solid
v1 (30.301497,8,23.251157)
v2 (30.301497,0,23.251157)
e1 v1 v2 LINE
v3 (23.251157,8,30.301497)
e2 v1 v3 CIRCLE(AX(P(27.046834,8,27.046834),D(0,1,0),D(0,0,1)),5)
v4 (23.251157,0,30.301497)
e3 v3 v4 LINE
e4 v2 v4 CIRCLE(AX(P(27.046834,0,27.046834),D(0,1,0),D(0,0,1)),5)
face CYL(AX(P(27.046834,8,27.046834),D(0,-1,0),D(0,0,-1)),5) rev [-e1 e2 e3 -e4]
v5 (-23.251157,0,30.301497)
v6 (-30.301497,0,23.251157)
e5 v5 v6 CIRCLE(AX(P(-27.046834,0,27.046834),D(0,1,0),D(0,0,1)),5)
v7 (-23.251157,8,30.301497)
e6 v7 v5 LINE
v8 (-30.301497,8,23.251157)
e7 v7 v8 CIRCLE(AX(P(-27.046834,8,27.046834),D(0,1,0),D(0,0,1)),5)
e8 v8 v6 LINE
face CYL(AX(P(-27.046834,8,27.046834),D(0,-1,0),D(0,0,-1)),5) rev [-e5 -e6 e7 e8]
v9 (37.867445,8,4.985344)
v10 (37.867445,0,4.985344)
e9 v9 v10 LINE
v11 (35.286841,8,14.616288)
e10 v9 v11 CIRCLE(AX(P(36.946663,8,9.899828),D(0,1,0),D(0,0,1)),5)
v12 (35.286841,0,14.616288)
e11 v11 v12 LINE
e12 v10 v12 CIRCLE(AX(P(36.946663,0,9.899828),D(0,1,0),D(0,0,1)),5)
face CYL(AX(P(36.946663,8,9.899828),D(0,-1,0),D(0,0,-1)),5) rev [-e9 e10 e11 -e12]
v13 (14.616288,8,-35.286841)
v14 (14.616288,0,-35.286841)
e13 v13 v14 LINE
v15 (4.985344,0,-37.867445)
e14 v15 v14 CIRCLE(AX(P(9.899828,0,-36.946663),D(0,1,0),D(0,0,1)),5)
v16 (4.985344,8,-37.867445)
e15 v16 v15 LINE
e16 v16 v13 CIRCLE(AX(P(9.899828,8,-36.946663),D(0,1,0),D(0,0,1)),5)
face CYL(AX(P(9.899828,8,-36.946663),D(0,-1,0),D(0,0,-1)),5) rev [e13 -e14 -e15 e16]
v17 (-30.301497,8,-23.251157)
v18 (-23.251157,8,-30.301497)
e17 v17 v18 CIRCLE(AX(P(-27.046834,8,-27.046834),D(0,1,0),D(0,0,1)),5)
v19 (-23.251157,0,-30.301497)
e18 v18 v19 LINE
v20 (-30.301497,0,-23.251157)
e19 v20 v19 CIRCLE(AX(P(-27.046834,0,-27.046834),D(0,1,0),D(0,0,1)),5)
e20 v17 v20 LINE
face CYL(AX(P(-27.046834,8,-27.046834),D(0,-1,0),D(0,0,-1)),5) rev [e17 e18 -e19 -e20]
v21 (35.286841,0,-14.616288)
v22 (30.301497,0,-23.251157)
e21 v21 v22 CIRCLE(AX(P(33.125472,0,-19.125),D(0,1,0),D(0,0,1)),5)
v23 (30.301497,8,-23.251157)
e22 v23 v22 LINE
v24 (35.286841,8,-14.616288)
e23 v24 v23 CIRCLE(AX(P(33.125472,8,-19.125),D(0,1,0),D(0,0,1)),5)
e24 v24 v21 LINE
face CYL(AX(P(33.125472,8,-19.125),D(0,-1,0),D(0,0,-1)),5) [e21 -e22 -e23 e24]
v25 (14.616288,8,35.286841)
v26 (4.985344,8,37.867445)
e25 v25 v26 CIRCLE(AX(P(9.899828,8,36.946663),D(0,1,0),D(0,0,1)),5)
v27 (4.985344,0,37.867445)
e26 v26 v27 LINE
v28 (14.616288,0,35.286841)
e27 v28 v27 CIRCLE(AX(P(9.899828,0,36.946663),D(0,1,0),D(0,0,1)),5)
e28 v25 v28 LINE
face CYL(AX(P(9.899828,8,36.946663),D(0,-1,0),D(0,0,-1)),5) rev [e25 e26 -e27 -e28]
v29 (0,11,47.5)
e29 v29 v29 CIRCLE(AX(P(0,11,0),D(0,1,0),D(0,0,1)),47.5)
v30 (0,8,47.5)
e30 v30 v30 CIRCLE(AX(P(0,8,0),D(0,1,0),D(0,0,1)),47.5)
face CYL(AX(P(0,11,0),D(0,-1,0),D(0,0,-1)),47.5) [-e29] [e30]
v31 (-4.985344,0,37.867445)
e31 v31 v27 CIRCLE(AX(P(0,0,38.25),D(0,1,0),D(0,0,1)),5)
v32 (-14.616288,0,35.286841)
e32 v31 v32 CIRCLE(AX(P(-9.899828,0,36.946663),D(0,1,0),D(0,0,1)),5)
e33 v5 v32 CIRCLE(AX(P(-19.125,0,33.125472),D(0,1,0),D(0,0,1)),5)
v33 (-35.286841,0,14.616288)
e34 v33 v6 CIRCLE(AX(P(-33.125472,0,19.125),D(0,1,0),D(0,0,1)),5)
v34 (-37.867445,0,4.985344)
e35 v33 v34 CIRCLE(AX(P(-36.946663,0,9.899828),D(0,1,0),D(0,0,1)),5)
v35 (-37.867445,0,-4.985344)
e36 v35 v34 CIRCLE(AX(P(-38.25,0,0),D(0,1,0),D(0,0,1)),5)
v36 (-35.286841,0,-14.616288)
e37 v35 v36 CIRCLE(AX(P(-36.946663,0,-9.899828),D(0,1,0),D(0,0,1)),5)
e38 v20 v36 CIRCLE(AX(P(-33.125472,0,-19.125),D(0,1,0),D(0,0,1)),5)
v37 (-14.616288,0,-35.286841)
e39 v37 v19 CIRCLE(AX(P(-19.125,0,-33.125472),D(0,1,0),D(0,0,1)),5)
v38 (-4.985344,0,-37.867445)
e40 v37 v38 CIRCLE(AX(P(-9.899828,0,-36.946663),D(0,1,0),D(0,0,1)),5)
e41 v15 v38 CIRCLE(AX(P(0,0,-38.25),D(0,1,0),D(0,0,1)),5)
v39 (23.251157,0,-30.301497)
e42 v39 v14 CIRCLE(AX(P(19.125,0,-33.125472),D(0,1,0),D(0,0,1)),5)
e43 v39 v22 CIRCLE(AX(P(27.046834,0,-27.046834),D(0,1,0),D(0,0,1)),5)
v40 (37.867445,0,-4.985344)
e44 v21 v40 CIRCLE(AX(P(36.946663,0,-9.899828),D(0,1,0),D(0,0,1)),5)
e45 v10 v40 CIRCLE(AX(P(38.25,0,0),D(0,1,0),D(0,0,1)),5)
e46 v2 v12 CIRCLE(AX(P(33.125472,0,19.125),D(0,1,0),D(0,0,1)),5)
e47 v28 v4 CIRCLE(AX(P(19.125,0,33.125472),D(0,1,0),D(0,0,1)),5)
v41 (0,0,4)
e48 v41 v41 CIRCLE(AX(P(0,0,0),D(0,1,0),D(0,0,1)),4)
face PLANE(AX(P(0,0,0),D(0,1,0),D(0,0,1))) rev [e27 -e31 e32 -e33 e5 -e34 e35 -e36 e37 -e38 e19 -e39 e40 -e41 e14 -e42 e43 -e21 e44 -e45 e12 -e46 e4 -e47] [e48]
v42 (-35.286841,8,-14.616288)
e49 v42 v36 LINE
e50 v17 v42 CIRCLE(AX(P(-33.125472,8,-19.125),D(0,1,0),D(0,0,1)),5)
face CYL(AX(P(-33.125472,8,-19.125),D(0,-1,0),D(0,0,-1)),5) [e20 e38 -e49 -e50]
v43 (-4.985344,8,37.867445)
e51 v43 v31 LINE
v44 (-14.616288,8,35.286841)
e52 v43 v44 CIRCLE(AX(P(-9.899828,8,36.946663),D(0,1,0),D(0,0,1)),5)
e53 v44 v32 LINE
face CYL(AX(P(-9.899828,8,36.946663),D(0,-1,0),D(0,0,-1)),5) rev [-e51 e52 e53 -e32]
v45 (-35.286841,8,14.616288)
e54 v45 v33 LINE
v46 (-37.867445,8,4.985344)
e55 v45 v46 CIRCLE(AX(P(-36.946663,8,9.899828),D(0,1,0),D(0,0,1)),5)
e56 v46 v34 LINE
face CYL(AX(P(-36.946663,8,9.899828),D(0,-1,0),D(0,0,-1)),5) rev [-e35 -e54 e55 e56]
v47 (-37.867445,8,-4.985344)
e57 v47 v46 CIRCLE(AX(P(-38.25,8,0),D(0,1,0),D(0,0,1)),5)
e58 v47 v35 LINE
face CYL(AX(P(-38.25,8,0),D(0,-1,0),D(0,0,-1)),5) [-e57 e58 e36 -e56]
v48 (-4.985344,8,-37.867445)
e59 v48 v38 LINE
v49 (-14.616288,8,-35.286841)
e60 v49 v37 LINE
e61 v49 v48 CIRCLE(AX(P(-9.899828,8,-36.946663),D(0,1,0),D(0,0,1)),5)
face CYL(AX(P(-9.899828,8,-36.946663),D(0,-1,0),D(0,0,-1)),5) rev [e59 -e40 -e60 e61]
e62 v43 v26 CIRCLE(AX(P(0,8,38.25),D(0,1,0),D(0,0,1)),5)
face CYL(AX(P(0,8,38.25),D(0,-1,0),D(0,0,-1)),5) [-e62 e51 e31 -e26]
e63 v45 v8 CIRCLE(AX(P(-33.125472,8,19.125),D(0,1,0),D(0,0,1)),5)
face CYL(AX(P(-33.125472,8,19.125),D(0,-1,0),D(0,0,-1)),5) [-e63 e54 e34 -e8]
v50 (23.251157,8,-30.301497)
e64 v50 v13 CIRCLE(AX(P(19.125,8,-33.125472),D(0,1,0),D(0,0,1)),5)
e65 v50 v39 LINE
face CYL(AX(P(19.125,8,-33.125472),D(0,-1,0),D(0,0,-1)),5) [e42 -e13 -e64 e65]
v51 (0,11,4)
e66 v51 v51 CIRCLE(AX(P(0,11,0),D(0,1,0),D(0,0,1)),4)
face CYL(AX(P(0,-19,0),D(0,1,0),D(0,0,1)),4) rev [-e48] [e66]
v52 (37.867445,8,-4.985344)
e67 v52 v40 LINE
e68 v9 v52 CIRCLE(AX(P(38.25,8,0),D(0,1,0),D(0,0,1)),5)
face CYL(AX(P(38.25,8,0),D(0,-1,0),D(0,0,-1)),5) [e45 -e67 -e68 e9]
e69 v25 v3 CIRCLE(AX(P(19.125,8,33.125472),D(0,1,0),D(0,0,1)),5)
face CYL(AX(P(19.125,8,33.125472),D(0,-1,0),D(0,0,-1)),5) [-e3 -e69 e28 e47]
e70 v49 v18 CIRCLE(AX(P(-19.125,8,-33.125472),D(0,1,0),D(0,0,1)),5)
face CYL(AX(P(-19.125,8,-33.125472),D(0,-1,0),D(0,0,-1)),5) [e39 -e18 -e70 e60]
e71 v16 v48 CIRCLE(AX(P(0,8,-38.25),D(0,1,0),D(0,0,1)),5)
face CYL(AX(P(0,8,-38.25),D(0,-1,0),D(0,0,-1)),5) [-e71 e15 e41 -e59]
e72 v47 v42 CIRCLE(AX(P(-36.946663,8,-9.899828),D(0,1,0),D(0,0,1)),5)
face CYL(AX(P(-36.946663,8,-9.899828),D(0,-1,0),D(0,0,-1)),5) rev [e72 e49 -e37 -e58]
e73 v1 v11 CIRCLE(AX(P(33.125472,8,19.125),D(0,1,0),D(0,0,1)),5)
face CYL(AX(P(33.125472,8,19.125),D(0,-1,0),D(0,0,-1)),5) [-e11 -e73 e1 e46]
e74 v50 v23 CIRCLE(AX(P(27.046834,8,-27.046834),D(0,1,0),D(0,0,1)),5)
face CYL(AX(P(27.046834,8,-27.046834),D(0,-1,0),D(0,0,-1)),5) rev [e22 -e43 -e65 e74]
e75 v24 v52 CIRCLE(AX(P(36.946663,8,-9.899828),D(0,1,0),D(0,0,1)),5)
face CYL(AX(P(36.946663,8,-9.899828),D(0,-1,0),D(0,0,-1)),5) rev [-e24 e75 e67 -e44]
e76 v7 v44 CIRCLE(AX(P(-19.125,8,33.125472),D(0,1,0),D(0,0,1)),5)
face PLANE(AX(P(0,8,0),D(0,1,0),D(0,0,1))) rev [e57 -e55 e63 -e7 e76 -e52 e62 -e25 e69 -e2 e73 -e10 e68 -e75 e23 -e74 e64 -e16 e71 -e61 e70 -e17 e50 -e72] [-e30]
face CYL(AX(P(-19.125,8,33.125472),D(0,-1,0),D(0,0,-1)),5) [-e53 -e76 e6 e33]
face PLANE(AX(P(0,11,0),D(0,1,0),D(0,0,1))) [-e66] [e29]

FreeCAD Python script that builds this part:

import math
import FreeCAD as App
import Part
import Sketcher

V = App.Vector

doc = App.newDocument("Part")
body = doc.addObject("PartDesign::Body", "Body")

# Sketch on XZ plane
sketch1 = body.newObject("Sketcher::SketchObject", "Sketch")
sketch1.AttachmentSupport = (doc.getObject("XZ_Plane"), [""])
sketch1.MapMode = "FlatFace"
sketch1.addGeometry([
    Part.ArcOfCircle(Part.Circle(V(38.25, 0, 0), V(0, 0, 1), 5), math.radians(-94.388051), math.radians(94.388051)),  # 0
    Part.ArcOfCircle(Part.Circle(V(36.946663, -9.899828, 0), V(0, 0, 1), 5), math.radians(79.388051), math.radians(250.611949)),  # 1
    Part.ArcOfCircle(Part.Circle(V(33.125472, -19.125, 0), V(0, 0, 1), 5), math.radians(-124.388051), math.radians(64.388051)),  # 2
    Part.ArcOfCircle(Part.Circle(V(27.046834, -27.046834, 0), V(0, 0, 1), 5), math.radians(49.388051), math.radians(220.611949)),  # 3
    Part.ArcOfCircle(Part.Circle(V(19.125, -33.125472, 0), V(0, 0, 1), 5), math.radians(-154.388051), math.radians(34.388051)),  # 4
    Part.ArcOfCircle(Part.Circle(V(9.899828, -36.946663, 0), V(0, 0, 1), 5), math.radians(19.388051), math.radians(190.611949)),  # 5
    Part.ArcOfCircle(Part.Circle(V(0, -38.25, 0), V(0, 0, 1), 5), math.radians(175.611949), math.radians(364.388051)),  # 6
    Part.ArcOfCircle(Part.Circle(V(-9.899828, -36.946663, 0), V(0, 0, 1), 5), math.radians(-10.611949), math.radians(160.611949)),  # 7
    Part.ArcOfCircle(Part.Circle(V(-19.125, -33.125472, 0), V(0, 0, 1), 5), math.radians(145.611949), math.radians(334.388051)),  # 8
    Part.ArcOfCircle(Part.Circle(V(-27.046834, -27.046834, 0), V(0, 0, 1), 5), math.radians(-40.611949), math.radians(130.611949)),  # 9
    Part.ArcOfCircle(Part.Circle(V(-33.125472, -19.125, 0), V(0, 0, 1), 5), math.radians(115.611949), math.radians(304.388051)),  # 10
    Part.ArcOfCircle(Part.Circle(V(-36.946663, -9.899828, 0), V(0, 0, 1), 5), math.radians(-70.611949), math.radians(100.611949)),  # 11
    Part.ArcOfCircle(Part.Circle(V(-38.25, 0, 0), V(0, 0, 1), 5), math.radians(85.611949), math.radians(274.388051)),  # 12
    Part.ArcOfCircle(Part.Circle(V(-36.946663, 9.899828, 0), V(0, 0, 1), 5), math.radians(-100.611949), math.radians(70.611949)),  # 13
    Part.ArcOfCircle(Part.Circle(V(-33.125472, 19.125, 0), V(0, 0, 1), 5), math.radians(55.611949), math.radians(244.388051)),  # 14
    Part.ArcOfCircle(Part.Circle(V(-27.046834, 27.046834, 0), V(0, 0, 1), 5), math.radians(-130.611949), math.radians(40.611949)),  # 15
    Part.ArcOfCircle(Part.Circle(V(-19.125, 33.125472, 0), V(0, 0, 1), 5), math.radians(25.611949), math.radians(214.388051)),  # 16
    Part.ArcOfCircle(Part.Circle(V(-9.899828, 36.946663, 0), V(0, 0, 1), 5), math.radians(-160.611949), math.radians(10.611949)),  # 17
    Part.ArcOfCircle(Part.Circle(V(0, 38.25, 0), V(0, 0, 1), 5), math.radians(-4.388051), math.radians(184.388051)),  # 18
    Part.ArcOfCircle(Part.Circle(V(9.899828, 36.946663, 0), V(0, 0, 1), 5), math.radians(169.388051), math.radians(340.611949)),  # 19
    Part.ArcOfCircle(Part.Circle(V(19.125, 33.125472, 0), V(0, 0, 1), 5), math.radians(-34.388051), math.radians(154.388051)),  # 20
    Part.ArcOfCircle(Part.Circle(V(27.046834, 27.046834, 0), V(0, 0, 1), 5), math.radians(139.388051), math.radians(310.611949)),  # 21
    Part.ArcOfCircle(Part.Circle(V(33.125472, 19.125, 0), V(0, 0, 1), 5), math.radians(-64.388051), math.radians(124.388051)),  # 22
    Part.ArcOfCircle(Part.Circle(V(36.946663, 9.899828, 0), V(0, 0, 1), 5), math.radians(109.388051), math.radians(280.611949)),  # 23
], False)
sketch1.addConstraint([
    Sketcher.Constraint("Coincident", 0, 1, 1, 1),
    Sketcher.Constraint("Coincident", 1, 2, 2, 2),
    Sketcher.Constraint("Coincident", 2, 1, 3, 1),
    Sketcher.Constraint("Coincident", 3, 2, 4, 2),
    Sketcher.Constraint("Coincident", 4, 1, 5, 1),
    Sketcher.Constraint("Coincident", 5, 2, 6, 2),
    Sketcher.Constraint("Coincident", 6, 1, 7, 1),
    Sketcher.Constraint("Coincident", 7, 2, 8, 2),
    Sketcher.Constraint("Coincident", 8, 1, 9, 1),
    Sketcher.Constraint("Coincident", 9, 2, 10, 2),
    Sketcher.Constraint("Coincident", 10, 1, 11, 1),
    Sketcher.Constraint("Coincident", 11, 2, 12, 2),
    Sketcher.Constraint("Coincident", 12, 1, 13, 1),
    Sketcher.Constraint("Coincident", 13, 2, 14, 2),
    Sketcher.Constraint("Coincident", 14, 1, 15, 1),
    Sketcher.Constraint("Coincident", 15, 2, 16, 2),
    Sketcher.Constraint("Coincident", 16, 1, 17, 1),
    Sketcher.Constraint("Coincident", 17, 2, 18, 2),
    Sketcher.Constraint("Coincident", 18, 1, 19, 1),
    Sketcher.Constraint("Coincident", 19, 2, 20, 2),
    Sketcher.Constraint("Coincident", 20, 1, 21, 1),
    Sketcher.Constraint("Coincident", 21, 2, 22, 2),
    Sketcher.Constraint("Coincident", 22, 1, 23, 1),
    Sketcher.Constraint("Coincident", 23, 2, 0, 2),
    Sketcher.Constraint("Equal", 0, 1),
    Sketcher.Constraint("Equal", 1, 2),
    Sketcher.Constraint("Equal", 2, 3),
    Sketcher.Constraint("Equal", 3, 4),
    Sketcher.Constraint("Equal", 4, 5),
    Sketcher.Constraint("Equal", 5, 6),
    Sketcher.Constraint("Equal", 6, 7),
    Sketcher.Constraint("Equal", 7, 8),
    Sketcher.Constraint("Equal", 8, 9),
    Sketcher.Constraint("Equal", 9, 10),
    Sketcher.Constraint("Equal", 10, 11),
    Sketcher.Constraint("Equal", 11, 12),
    Sketcher.Constraint("Equal", 12, 13),
    Sketcher.Constraint("Equal", 13, 14),
    Sketcher.Constraint("Equal", 14, 15),
    Sketcher.Constraint("Equal", 15, 16),
    Sketcher.Constraint("Equal", 16, 17),
    Sketcher.Constraint("Equal", 17, 18),
    Sketcher.Constraint("Equal", 18, 19),
    Sketcher.Constraint("Equal", 19, 20),
    Sketcher.Constraint("Equal", 20, 21),
    Sketcher.Constraint("Equal", 21, 22),
    Sketcher.Constraint("Equal", 22, 23),
    Sketcher.Constraint("Symmetric", 0, 3, 12, 3, -1, 1),
    Sketcher.Constraint("Symmetric", 1, 3, 13, 3, -1, 1),
    Sketcher.Constraint("Symmetric", 2, 3, 14, 3, -1, 1),
    Sketcher.Constraint("Symmetric", 3, 3, 15, 3, -1, 1),
    Sketcher.Constraint("Symmetric", 4, 3, 16, 3, -1, 1),
    Sketcher.Constraint("Symmetric", 5, 3, 17, 3, -1, 1),
    Sketcher.Constraint("Symmetric", 6, 3, 18, 3, -1, 1),
    Sketcher.Constraint("Symmetric", 7, 3, 19, 3, -1, 1),
    Sketcher.Constraint("Symmetric", 8, 3, 20, 3, -1, 1),
    Sketcher.Constraint("Symmetric", 9, 3, 21, 3, -1, 1),
    Sketcher.Constraint("Symmetric", 10, 3, 22, 3, -1, 1),
    Sketcher.Constraint("Symmetric", 11, 3, 23, 3, -1, 1),
    Sketcher.Constraint("Symmetric", 5, 3, 7, 3, -2),
    Sketcher.Constraint("Symmetric", 4, 3, 8, 3, -2),
    Sketcher.Constraint("Symmetric", 3, 3, 9, 3, -2),
    Sketcher.Constraint("Symmetric", 2, 3, 10, 3, -2),
    Sketcher.Constraint("Symmetric", 1, 3, 11, 3, -2),
    Sketcher.Constraint("PointOnObject", 0, 3, -1),
    Sketcher.Constraint("PointOnObject", 6, 3, -2),
    Sketcher.Constraint("Radius", 0, 5.0),
    Sketcher.Constraint("DistanceX", -1, 1, 0, 3, 38.25),
    Sketcher.Constraint("DistanceY", 6, 3, -1, 1, 38.25),
    Sketcher.Constraint("DistanceX", 8, 3, 4, 3, 38.25),
    Sketcher.Constraint("DistanceY", 10, 3, 14, 3, 38.25),
    Sketcher.Constraint("DistanceX", 7, 3, 2, 3, 43.0253),
    Sketcher.Constraint("DistanceY", 8, 3, 13, 3, 43.0253),
    Sketcher.Constraint("DistanceY", 1, 3, -1, 1, 9.899828),
    Sketcher.Constraint("DistanceX", -1, 1, 2, 3, 33.125472),
    Sketcher.Constraint("DistanceX", -1, 1, 1, 2, 35.286841),
    Sketcher.Constraint("DistanceX", -1, 1, 4, 1, 14.616288),
    Sketcher.Constraint("DistanceX", 3, 3, 1, 3, 9.899828),
    Sketcher.Constraint("DistanceY", 5, 3, 3, 3, 9.899828),
])
pad1 = body.newObject("PartDesign::Pad", "Pad")
pad1.Profile = sketch1
pad1.Length = 8
pad1.Reversed = True

# Sketch on XZ plane
sketch2 = body.newObject("Sketcher::SketchObject", "Sketch001")
sketch2.AttachmentSupport = (doc.getObject("XZ_Plane"), [""])
sketch2.MapMode = "FlatFace"
sketch2.AttachmentOffset = App.Placement(V(0, 0, -8), App.Rotation())
sketch2.addGeometry(Part.Circle(V(0, 0, 0), V(0, 0, 1), 47.5), False)
sketch2.addConstraint([
    Sketcher.Constraint("Coincident", 0, 3, -1, 1),
    Sketcher.Constraint("Diameter", 0, 95.0),
])
pad2 = body.newObject("PartDesign::Pad", "Pad001")
pad2.Profile = sketch2
pad2.Length = 3
pad2.Reversed = True

# Sketch on XZ plane
sketch3 = body.newObject("Sketcher::SketchObject", "Sketch002")
sketch3.AttachmentSupport = (doc.getObject("XZ_Plane"), [""])
sketch3.MapMode = "FlatFace"
sketch3.AttachmentOffset = App.Placement(V(0, 0, -11), App.Rotation())
sketch3.addGeometry(Part.Circle(V(0, 0, 0), V(0, 0, 1), 4), False)
sketch3.addConstraint([
    Sketcher.Constraint("Coincident", 0, 3, -1, 1),
    Sketcher.Constraint("Diameter", 0, 8.0),
])
pocket1 = body.newObject("PartDesign::Pocket", "Pocket")
pocket1.Profile = sketch3
pocket1.Length = 30
pocket1.Reversed = True

doc.recompute()
